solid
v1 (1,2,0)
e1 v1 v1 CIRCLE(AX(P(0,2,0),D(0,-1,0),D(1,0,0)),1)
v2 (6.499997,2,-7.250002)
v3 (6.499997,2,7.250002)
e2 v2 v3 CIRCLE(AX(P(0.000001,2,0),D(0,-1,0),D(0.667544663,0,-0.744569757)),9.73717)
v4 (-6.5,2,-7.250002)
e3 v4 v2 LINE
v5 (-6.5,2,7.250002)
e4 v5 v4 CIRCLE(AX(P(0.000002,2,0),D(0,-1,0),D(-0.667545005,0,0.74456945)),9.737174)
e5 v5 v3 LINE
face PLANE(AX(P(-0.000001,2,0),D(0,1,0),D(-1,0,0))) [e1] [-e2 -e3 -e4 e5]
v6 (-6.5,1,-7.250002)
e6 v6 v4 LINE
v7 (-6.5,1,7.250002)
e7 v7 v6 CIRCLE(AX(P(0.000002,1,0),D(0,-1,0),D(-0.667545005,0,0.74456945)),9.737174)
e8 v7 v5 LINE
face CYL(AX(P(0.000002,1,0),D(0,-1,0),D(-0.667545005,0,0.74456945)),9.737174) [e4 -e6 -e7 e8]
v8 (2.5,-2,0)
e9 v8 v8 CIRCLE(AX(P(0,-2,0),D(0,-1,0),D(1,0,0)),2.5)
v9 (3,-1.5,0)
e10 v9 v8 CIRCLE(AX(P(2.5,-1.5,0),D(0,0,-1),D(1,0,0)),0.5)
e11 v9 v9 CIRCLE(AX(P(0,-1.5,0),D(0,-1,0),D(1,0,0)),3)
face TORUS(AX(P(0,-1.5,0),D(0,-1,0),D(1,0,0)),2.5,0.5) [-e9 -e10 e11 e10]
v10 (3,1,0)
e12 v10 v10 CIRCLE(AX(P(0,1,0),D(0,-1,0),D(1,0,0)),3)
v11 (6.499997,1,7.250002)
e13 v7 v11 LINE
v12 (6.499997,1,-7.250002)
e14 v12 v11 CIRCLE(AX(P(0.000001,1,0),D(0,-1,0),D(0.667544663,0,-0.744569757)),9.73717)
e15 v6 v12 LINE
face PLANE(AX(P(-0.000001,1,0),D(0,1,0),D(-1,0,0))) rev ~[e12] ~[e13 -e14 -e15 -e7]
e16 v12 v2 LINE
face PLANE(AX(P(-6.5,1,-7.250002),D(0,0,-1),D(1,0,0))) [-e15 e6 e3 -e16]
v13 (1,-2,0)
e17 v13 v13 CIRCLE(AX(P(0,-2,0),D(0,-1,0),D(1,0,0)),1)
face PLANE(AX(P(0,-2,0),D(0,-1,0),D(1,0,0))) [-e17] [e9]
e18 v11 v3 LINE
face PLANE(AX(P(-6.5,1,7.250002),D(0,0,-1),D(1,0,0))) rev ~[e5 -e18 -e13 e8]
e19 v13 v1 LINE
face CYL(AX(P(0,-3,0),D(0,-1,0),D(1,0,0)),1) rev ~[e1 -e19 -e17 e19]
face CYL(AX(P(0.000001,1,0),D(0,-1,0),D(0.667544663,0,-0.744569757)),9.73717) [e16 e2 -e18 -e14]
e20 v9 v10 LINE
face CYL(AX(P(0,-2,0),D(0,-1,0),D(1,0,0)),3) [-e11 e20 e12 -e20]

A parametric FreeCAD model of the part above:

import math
import FreeCAD as App
import Part
import Sketcher
from FreeCAD import Vector


def edges_at(feature, points):
    """Names of the edges that pass closest to the given points."""
    edges = feature.Shape.Edges
    near = lambda p: min(range(len(edges)), key=lambda i: edges[i].distToShape(Part.Vertex(*p))[0])
    return sorted({f"Edge{near(p) + 1}" for p in points})

doc = App.newDocument("Part")
body = doc.addObject("PartDesign::Body", "Body")

# Sketch on XY plane
sketch1 = body.newObject("Sketcher::SketchObject", "Sketch")
sketch1.AttachmentSupport = (doc.getObject("XY_Plane"), [""])
sketch1.MapMode = "FlatFace"
sketch1.addGeometry(Part.Circle(Vector(0, 0, 0), Vector(0, 0, 1), 1), False)
sketch1.addConstraint([
    Sketcher.Constraint("Coincident", 0, 3, -1, 1),
    Sketcher.Constraint("Diameter", 0, 2.0),
])
pad1 = body.newObject("PartDesign::Pad", "Pad")
pad1.Profile = sketch1
pad1.Length = 5
pad1.Reversed = True
body2 = doc.addObject("PartDesign::Body", "Body001")
doc.recompute()

body.Placement = App.Placement(Vector(0, 0, 0), App.Rotation(Vector(1, 0, 0), 90))
boolean = body2.newObject("PartDesign::Boolean", "Boolean")
boolean.Type = "Fuse"
boolean.addObjects([body])
body3 = doc.addObject("PartDesign::Body", "Body002")
doc.recompute()

body2.Placement = App.Placement(Vector(0, -3, 0), App.Rotation(Vector(0, 0, 1), 0))
boolean2 = body3.newObject("PartDesign::Boolean", "Boolean001")
boolean2.Type = "Fuse"
boolean2.addObjects([body2])
body4 = doc.addObject("PartDesign::Body", "Body003")

# Sketch on XY plane
sketch2 = body4.newObject("Sketcher::SketchObject", "Sketch001")
sketch2.AttachmentSupport = (doc.getObject("XY_Plane003"), [""])
sketch2.MapMode = "FlatFace"
sketch2.addGeometry(Part.Circle(Vector(0, 0, 0), Vector(0, 0, 1), 3), False)
sketch2.addConstraint([
    Sketcher.Constraint("Coincident", 0, 3, -1, 1),
    Sketcher.Constraint("Diameter", 0, 6.0),
])
pad2 = body4.newObject("PartDesign::Pad", "Pad001")
pad2.Profile = sketch2
pad2.Length = 3
pad2.Reversed = True
body5 = doc.addObject("PartDesign::Body", "Body004")
doc.recompute()

body4.Placement = App.Placement(Vector(0, 0, 0), App.Rotation(Vector(1, 0, 0), 90))
boolean3 = body5.newObject("PartDesign::Boolean", "Boolean002")
boolean3.Type = "Fuse"
boolean3.addObjects([body4])
body6 = doc.addObject("PartDesign::Body", "Body005")
doc.recompute()

body5.Placement = App.Placement(Vector(0, -2.5, 0), App.Rotation(Vector(0, 0, 1), 0))
boolean4 = body6.newObject("PartDesign::Boolean", "Boolean003")
boolean4.Type = "Fuse"
boolean4.addObjects([body5])
body7 = doc.addObject("PartDesign::Body", "Body006")
doc.recompute()

body6.Placement = App.Placement(Vector(0, 0.5, 0), App.Rotation(Vector(0, 0, 1), 0))
boolean5 = body7.newObject("PartDesign::Boolean", "Boolean004")
boolean5.Type = "Fuse"
boolean5.addObjects([body6])
doc.recompute()

fillet = body7.newObject("PartDesign::Fillet", "Fillet")
fillet.Base = (boolean5, edges_at(boolean5, [(-3, -2, 0)]))
fillet.Radius = 0.5
body8 = doc.addObject("PartDesign::Body", "Body007")

# Sketch on XY plane
sketch3 = body8.newObject("Sketcher::SketchObject", "Sketch002")
sketch3.AttachmentSupport = (doc.getObject("XY_Plane007"), [""])
sketch3.MapMode = "FlatFace"
sketch3.addGeometry([
    Part.LineSegment(Vector(6, 7, 0), Vector(-6, 7, 0)),
    Part.ArcOfCircle(Part.Circle(Vector(0, 0, 0), Vector(0, 0, 1), 10), math.radians(132), math.radians(228)),
    Part.LineSegment(Vector(-6, -7, 0), Vector(6, -7, 0)),
    Part.ArcOfCircle(Part.Circle(Vector(0, 0, 0), Vector(0, 0, 1), 10), math.radians(-48), math.radians(48)),
], False)
sketch3.addConstraint([
    Sketcher.Constraint("Coincident", 0, 2, 1, 1),
    Sketcher.Constraint("Coincident", 1, 2, 2, 1),
    Sketcher.Constraint("Coincident", 2, 2, 3, 1),
    Sketcher.Constraint("Coincident", 3, 2, 0, 1),
    Sketcher.Constraint("Horizontal", 0),
    Sketcher.Constraint("Horizontal", 2),
    Sketcher.Constraint("Coincident", 1, 3, -1, 1),
    Sketcher.Constraint("Coincident", 3, 3, -1, 1),
    Sketcher.Constraint("Symmetric", 0, 2, 2, 2, -1, 1),
    Sketcher.Constraint("DistanceX", 0, 2, -1, 1, 6.5),
    Sketcher.Constraint("DistanceY", -1, 1, 3, 2, 7.250002),
])
pad3 = body8.newObject("PartDesign::Pad", "Pad002")
pad3.Profile = sketch3
pad3.Length = 1
pad3.Reversed = True
body9 = doc.addObject("PartDesign::Body", "Body008")
doc.recompute()

body8.Placement = App.Placement(Vector(0, 0, 0), App.Rotation(Vector(1, 0, 0), 90))
boolean6 = body9.newObject("PartDesign::Boolean", "Boolean005")
boolean6.Type = "Fuse"
boolean6.addObjects([body8])
body10 = doc.addObject("PartDesign::Body", "Body009")
doc.recompute()

body9.Placement = App.Placement(Vector(0, 1, 0), App.Rotation(Vector(0, 0, 1), 0))
boolean7 = body10.newObject("PartDesign::Boolean", "Boolean006")
boolean7.Type = "Fuse"
boolean7.addObjects([body9])
doc.recompute()

boolean8 = body10.newObject("PartDesign::Boolean", "Boolean007")
boolean8.Type = "Fuse"
boolean8.addObjects([body7])
doc.recompute()

boolean9 = body10.newObject("PartDesign::Boolean", "Boolean008")
boolean9.Type = "Cut"
boolean9.addObjects([body3])

doc.recompute()
